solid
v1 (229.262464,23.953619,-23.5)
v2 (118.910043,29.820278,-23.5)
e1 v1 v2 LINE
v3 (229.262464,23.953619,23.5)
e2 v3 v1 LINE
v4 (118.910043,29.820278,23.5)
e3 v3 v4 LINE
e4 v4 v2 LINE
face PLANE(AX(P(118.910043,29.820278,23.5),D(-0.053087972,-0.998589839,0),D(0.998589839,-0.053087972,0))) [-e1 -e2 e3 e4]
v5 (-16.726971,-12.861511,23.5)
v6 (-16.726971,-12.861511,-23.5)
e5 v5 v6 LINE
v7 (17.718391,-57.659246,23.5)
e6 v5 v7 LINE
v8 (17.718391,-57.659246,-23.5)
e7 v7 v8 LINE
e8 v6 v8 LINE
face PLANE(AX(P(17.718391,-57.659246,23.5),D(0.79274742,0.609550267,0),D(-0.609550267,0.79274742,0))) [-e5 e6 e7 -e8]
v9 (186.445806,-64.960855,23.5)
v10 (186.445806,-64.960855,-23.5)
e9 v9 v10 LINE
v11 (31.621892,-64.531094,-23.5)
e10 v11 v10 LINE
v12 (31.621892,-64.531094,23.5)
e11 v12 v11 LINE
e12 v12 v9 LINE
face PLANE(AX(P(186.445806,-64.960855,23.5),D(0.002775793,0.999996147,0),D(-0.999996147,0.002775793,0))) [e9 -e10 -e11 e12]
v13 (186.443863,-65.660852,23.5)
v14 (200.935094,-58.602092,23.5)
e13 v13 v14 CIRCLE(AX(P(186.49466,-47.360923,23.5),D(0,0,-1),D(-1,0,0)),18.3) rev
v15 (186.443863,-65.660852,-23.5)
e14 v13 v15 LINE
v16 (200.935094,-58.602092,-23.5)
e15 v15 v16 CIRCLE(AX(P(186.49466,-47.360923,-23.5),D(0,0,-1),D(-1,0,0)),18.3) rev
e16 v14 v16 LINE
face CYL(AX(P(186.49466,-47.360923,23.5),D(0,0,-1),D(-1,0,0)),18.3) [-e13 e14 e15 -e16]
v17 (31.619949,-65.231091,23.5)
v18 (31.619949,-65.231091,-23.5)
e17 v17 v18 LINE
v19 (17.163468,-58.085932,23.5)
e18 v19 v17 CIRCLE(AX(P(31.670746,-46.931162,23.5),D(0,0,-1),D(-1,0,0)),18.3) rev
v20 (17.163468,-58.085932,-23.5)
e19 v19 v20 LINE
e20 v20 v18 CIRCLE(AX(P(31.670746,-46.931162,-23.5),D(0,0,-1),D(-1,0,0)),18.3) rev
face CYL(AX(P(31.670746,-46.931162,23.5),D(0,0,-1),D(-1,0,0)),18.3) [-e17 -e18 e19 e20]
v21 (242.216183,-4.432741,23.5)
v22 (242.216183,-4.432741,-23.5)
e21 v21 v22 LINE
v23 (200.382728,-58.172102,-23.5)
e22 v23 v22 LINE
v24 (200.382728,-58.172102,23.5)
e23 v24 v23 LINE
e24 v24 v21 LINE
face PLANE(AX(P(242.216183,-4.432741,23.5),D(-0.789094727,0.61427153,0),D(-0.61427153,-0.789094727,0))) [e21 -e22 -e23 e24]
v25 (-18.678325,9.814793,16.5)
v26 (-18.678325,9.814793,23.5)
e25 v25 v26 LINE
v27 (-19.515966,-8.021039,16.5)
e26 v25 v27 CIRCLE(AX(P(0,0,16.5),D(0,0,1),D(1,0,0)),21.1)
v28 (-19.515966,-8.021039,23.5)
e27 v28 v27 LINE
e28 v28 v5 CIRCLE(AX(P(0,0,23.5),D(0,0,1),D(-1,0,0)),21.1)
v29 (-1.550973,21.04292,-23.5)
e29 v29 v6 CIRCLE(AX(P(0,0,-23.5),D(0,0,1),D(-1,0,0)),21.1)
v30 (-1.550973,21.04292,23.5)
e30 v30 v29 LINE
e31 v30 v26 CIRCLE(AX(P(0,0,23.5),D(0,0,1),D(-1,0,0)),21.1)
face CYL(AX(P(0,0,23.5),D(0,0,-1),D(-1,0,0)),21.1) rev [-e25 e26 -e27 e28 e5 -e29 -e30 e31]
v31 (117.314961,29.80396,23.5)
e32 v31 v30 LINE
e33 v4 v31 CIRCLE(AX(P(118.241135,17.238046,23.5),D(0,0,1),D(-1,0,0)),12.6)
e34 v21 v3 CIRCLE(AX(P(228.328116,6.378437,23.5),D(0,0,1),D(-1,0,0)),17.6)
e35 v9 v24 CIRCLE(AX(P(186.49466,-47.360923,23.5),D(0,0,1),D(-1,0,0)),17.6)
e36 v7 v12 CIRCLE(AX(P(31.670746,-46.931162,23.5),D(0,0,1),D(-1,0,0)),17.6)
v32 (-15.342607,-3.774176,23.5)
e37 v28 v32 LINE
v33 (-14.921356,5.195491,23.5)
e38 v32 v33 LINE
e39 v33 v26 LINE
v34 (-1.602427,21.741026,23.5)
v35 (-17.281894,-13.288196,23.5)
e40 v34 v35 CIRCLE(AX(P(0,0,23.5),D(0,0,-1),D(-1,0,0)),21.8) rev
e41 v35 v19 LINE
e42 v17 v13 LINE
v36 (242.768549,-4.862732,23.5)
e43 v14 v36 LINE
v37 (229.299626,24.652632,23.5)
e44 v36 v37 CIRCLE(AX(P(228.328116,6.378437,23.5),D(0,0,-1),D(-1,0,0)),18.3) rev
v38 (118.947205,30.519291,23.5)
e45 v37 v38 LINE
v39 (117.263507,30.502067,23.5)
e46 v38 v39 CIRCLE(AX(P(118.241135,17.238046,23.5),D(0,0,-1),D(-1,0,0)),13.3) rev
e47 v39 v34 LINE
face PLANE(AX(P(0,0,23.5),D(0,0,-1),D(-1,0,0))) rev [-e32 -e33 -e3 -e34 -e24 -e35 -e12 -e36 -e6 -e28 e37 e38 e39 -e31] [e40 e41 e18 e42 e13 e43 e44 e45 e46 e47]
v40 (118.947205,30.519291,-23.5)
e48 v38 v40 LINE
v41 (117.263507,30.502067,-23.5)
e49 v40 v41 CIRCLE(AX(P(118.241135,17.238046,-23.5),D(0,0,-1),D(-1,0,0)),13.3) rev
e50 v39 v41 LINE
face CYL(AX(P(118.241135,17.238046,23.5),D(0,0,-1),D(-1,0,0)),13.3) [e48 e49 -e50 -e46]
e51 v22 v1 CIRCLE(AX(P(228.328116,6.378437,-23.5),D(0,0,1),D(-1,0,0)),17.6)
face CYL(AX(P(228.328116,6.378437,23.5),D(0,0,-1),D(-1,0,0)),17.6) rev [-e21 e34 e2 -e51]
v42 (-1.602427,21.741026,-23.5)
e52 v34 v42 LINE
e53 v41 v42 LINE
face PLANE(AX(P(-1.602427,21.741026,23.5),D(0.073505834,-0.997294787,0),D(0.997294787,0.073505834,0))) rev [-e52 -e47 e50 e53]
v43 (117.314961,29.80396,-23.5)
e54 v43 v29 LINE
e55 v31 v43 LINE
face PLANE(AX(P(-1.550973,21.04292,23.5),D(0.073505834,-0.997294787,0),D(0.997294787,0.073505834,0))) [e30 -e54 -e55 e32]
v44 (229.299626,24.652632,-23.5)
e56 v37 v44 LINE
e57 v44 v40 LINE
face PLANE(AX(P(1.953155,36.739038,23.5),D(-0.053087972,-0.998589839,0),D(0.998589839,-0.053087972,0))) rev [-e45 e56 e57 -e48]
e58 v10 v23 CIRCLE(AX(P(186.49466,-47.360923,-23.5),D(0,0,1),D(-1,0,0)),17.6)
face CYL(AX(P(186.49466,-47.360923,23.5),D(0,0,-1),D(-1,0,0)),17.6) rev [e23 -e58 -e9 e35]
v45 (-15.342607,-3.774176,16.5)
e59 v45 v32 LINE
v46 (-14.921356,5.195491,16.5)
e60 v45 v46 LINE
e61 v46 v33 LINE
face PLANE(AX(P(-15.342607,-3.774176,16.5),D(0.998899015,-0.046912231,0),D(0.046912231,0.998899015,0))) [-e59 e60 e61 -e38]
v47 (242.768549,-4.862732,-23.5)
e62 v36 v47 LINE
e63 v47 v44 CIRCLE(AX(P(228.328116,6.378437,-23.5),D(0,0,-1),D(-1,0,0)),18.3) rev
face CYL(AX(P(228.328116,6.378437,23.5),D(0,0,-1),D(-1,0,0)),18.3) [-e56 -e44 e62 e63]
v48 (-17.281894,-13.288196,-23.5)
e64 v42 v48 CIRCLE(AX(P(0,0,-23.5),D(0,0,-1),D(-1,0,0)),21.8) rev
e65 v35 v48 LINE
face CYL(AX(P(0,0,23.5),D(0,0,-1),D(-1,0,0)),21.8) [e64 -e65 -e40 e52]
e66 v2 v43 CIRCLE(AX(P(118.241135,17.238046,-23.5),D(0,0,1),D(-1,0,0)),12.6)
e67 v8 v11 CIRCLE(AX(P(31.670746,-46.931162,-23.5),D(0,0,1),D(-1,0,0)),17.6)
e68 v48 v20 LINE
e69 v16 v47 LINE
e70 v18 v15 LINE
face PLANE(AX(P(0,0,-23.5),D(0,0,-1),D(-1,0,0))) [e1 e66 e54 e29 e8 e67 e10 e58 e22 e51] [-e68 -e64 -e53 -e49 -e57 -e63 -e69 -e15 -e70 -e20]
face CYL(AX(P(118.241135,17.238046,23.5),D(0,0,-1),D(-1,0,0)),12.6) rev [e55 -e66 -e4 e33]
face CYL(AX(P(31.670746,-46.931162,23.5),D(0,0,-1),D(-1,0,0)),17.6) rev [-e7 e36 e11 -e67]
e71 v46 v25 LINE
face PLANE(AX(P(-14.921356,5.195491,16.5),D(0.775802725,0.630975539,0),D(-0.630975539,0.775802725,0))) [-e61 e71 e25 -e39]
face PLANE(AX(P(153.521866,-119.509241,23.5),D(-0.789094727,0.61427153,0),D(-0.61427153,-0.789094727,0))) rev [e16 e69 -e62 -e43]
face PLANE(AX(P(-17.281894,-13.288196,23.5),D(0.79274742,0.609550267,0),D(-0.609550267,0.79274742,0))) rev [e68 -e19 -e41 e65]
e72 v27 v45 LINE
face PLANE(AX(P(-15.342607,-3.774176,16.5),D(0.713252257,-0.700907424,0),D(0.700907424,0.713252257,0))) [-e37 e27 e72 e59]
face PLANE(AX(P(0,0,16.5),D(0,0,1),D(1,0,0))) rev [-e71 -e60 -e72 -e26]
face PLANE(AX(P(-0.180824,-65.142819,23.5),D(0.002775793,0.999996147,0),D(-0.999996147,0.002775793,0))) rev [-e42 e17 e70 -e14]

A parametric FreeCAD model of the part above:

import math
import FreeCAD as App
import Part
import Sketcher

V = App.Vector
Q = App.Units.Quantity

doc = App.newDocument("Part")
params = doc.addObject("Spreadsheet::Sheet", "Params")
for row, (alias, value) in enumerate([
    ("sketch1_radius", "18.3 mm"),
    ("sketch1_radius2", "18.3 mm"),
    ("sketch1_radius3", "18.3 mm"),
    ("sketch1_radius4", "13.3 mm"),
    ("sketch1_radius5", "21.8 mm"),
    ("pad1_length", "47 mm"),
    ("sketch2_radius", "21.8 mm"),
    ("pad2_length", "7 mm"),
], start=1):
    params.set(f"A{row}", alias)
    params.set(f"B{row}", "=" + value)
    params.setAlias(f"B{row}", alias)

body = doc.addObject("PartDesign::Body", "Body")

# Sketch on XY plane
sketch1 = body.newObject("Sketcher::SketchObject", "Sketch")
sketch1.AttachmentSupport = (doc.getObject("XY_Plane"), [""])
sketch1.MapMode = "FlatFace"
sketch1.addGeometry([
    Part.LineSegment(V(-17.281894, -13.288196, 0), V(17.163468, -58.085932, 0)),  # 0
    Part.ArcOfCircle(Part.Circle(V(31.670746, -46.931162, 0), V(0, 0, 1), 18.3), math.radians(-142.443009), math.radians(-90.159041)),  # 1
    Part.LineSegment(V(31.619949, -65.231091, 0), V(186.443863, -65.660852, 0)),  # 2
    Part.ArcOfCircle(Part.Circle(V(186.49466, -47.360923, 0), V(0, 0, 1), 18.3), math.radians(-90.159041), math.radians(-37.899007)),  # 3
    Part.LineSegment(V(200.935094, -58.602092, 0), V(242.768549, -4.862732, 0)),  # 4
    Part.ArcOfCircle(Part.Circle(V(228.328116, 6.378437, 0), V(0, 0, 1), 18.3), math.radians(-37.899007), math.radians(86.956853)),  # 5
    Part.LineSegment(V(229.299626, 24.652632, 0), V(118.947205, 30.519291, 0)),  # 6
    Part.ArcOfCircle(Part.Circle(V(118.241135, 17.238046, 0), V(0, 0, 1), 13.3), math.radians(86.956853), math.radians(94.215376)),  # 7
    Part.LineSegment(V(117.263507, 30.502067, 0), V(-1.602427, 21.741026, 0)),  # 8
    Part.ArcOfCircle(Part.Circle(V(0, 0, 0), V(0, 0, 1), 21.8), math.radians(94.215376), math.radians(217.556991)),  # 9
    Part.LineSegment(V(17.718391, -57.659246, 0), V(-16.726971, -12.861511, 0)),  # 10
    Part.ArcOfCircle(Part.Circle(V(0, 0, 0), V(0, 0, 1), 21.1), math.radians(94.215376), math.radians(217.556991)),  # 11
    Part.LineSegment(V(-1.550973, 21.04292, 0), V(117.314961, 29.80396, 0)),  # 12
    Part.ArcOfCircle(Part.Circle(V(118.241135, 17.238046, 0), V(0, 0, 1), 12.6), math.radians(86.956853), math.radians(94.215376)),  # 13
    Part.LineSegment(V(118.910043, 29.820278, 0), V(229.262464, 23.953619, 0)),  # 14
    Part.ArcOfCircle(Part.Circle(V(228.328116, 6.378437, 0), V(0, 0, 1), 17.6), math.radians(-37.899007), math.radians(86.956853)),  # 15
    Part.LineSegment(V(242.216183, -4.432741, 0), V(200.382728, -58.172102, 0)),  # 16
    Part.ArcOfCircle(Part.Circle(V(186.49466, -47.360923, 0), V(0, 0, 1), 17.6), math.radians(-90.159041), math.radians(-37.899007)),  # 17
    Part.LineSegment(V(186.445806, -64.960855, 0), V(31.621892, -64.531094, 0)),  # 18
    Part.ArcOfCircle(Part.Circle(V(31.670746, -46.931162, 0), V(0, 0, 1), 17.6), math.radians(-142.443009), math.radians(-90.159041)),  # 19
], False)
sketch1.addConstraint([
    Sketcher.Constraint("Coincident", 0, 2, 1, 1),
    Sketcher.Constraint("Coincident", 1, 2, 2, 1),
    Sketcher.Constraint("Coincident", 2, 2, 3, 1),
    Sketcher.Constraint("Coincident", 3, 2, 4, 1),
    Sketcher.Constraint("Coincident", 4, 2, 5, 1),
    Sketcher.Constraint("Coincident", 5, 2, 6, 1),
    Sketcher.Constraint("Coincident", 6, 2, 7, 1),
    Sketcher.Constraint("Coincident", 7, 2, 8, 1),
    Sketcher.Constraint("Coincident", 8, 2, 9, 1),
    Sketcher.Constraint("Coincident", 9, 2, 0, 1),
    Sketcher.Constraint("Coincident", 10, 2, 11, 2),
    Sketcher.Constraint("Coincident", 11, 1, 12, 1),
    Sketcher.Constraint("Coincident", 12, 2, 13, 2),
    Sketcher.Constraint("Coincident", 13, 1, 14, 1),
    Sketcher.Constraint("Coincident", 14, 2, 15, 2),
    Sketcher.Constraint("Coincident", 15, 1, 16, 1),
    Sketcher.Constraint("Coincident", 16, 2, 17, 2),
    Sketcher.Constraint("Coincident", 17, 1, 18, 1),
    Sketcher.Constraint("Coincident", 18, 2, 19, 2),
    Sketcher.Constraint("Coincident", 19, 1, 10, 1),
    Sketcher.Constraint("Coincident", 9, 3, -1, 1),
    Sketcher.Constraint("Coincident", 11, 3, -1, 1),
    Sketcher.Constraint("Coincident", 13, 3, 7, 3),
    Sketcher.Constraint("Coincident", 15, 3, 5, 3),
    Sketcher.Constraint("Coincident", 17, 3, 3, 3),
    Sketcher.Constraint("Coincident", 19, 3, 1, 3),
    Sketcher.Constraint("Radius", 1, Q("18.3 mm")),
    Sketcher.Constraint("Radius", 3, Q("18.3 mm")),
    Sketcher.Constraint("Radius", 5, Q("18.3 mm")),
    Sketcher.Constraint("Radius", 7, Q("13.3 mm")),
    Sketcher.Constraint("Radius", 9, Q("21.8 mm")),
    Sketcher.Constraint("Radius", 11, Q("21.1 mm")),
    Sketcher.Constraint("Radius", 13, Q("12.6 mm")),
    Sketcher.Constraint("Radius", 15, Q("17.6 mm")),
    Sketcher.Constraint("Radius", 17, Q("17.6 mm")),
    Sketcher.Constraint("Radius", 19, Q("17.6 mm")),
    Sketcher.Constraint("DistanceY", 16, 2, -1, 1, Q("58.172102 mm")),
    Sketcher.Constraint("DistanceY", 1, 3, 5, 3, Q("53.309599 mm")),
    Sketcher.Constraint("DistanceX", 12, 2, 3, 3, Q("69.179699 mm")),
    Sketcher.Constraint("DistanceX", 19, 1, 18, 2, Q("13.903501 mm")),
    Sketcher.Constraint("Distance", 0, Q("56.509469 mm")),
    Sketcher.Constraint("Distance", 2, Q("154.824511 mm")),
    Sketcher.Constraint("Distance", 10, Q("56.509469 mm")),
    Sketcher.Constraint("Distance", 18, Q("154.824511 mm")),
    Sketcher.Constraint("DistanceY", 1, 3, -1, 1, Q("46.931162 mm")),
    Sketcher.Constraint("DistanceX", -1, 1, 3, 3, Q("186.49466 mm")),
    Sketcher.Constraint("DistanceX", -1, 1, 0, 2, Q("17.163468 mm")),
    Sketcher.Constraint("DistanceY", 0, 2, -1, 1, Q("58.085932 mm")),
    Sketcher.Constraint("DistanceX", -1, 1, 1, 2, Q("31.619949 mm")),
    Sketcher.Constraint("DistanceY", 3, 2, -1, 1, Q("58.602092 mm")),
    Sketcher.Constraint("DistanceX", -1, 1, 4, 2, Q("242.768549 mm")),
    Sketcher.Constraint("DistanceY", 4, 2, -1, 1, Q("4.862732 mm")),
    Sketcher.Constraint("DistanceY", -1, 1, 5, 2, Q("24.652632 mm")),
    Sketcher.Constraint("DistanceY", -1, 1, 6, 2, Q("30.519291 mm")),
    Sketcher.Constraint("DistanceX", 10, 2, -1, 1, Q("16.726971 mm")),
    Sketcher.Constraint("DistanceY", -1, 1, 11, 1, Q("21.04292 mm")),
    Sketcher.Constraint("DistanceY", -1, 1, 12, 2, Q("29.80396 mm")),
    Sketcher.Constraint("DistanceY", -1, 1, 14, 2, Q("23.953619 mm")),
    Sketcher.Constraint("DistanceY", 15, 1, -1, 1, Q("4.432741 mm")),
    Sketcher.Constraint("DistanceY", 3, 3, 1, 3, Q("0.429761 mm")),
    Sketcher.Constraint("DistanceY", 3, 3, 7, 3, Q("64.598969 mm")),
    Sketcher.Constraint("DistanceY", 7, 3, 7, 2, Q("13.26402 mm")),
    Sketcher.Constraint("DistanceY", 1, 3, 8, 2, Q("68.672188 mm")),
    Sketcher.Constraint("DistanceX", 13, 1, 6, 2, Q("0.037162 mm")),
])
sketch1.setExpression("Constraints[26]", "Params.sketch1_radius")
sketch1.setExpression("Constraints[27]", "Params.sketch1_radius2")
sketch1.setExpression("Constraints[28]", "Params.sketch1_radius3")
sketch1.setExpression("Constraints[29]", "Params.sketch1_radius4")
sketch1.setExpression("Constraints[30]", "Params.sketch1_radius5")
pad1 = body.newObject("PartDesign::Pad", "Pad")
pad1.Profile = sketch1
pad1.setExpression("Length", "Params.pad1_length")
pad1.Midplane = True

# Sketch on XY plane
sketch2 = body.newObject("Sketcher::SketchObject", "Sketch001")
sketch2.AttachmentSupport = (doc.getObject("XY_Plane"), [""])
sketch2.MapMode = "FlatFace"
sketch2.AttachmentOffset = App.Placement(V(0, 0, 23.5), App.Rotation())
sketch2.addGeometry([
    Part.LineSegment(V(-15.342607, -3.774176, 0), V(-14.921356, 5.195491, 0)),  # 0
    Part.LineSegment(V(-14.921356, 5.195491, 0), V(-18.814601, 9.982348, 0)),  # 1
    Part.LineSegment(V(-18.814601, 9.982348, 0), V(-19.366834, 10.008283, 0)),  # 2
    Part.ArcOfCircle(Part.Circle(V(0, 0, 0), V(0, 0, 1), 21.8), math.radians(152.671239), math.radians(202.571088)),  # 3
    Part.LineSegment(V(-20.130208, -8.367481, 0), V(-19.667346, -8.175084, 0)),  # 4
    Part.LineSegment(V(-19.667346, -8.175084, 0), V(-15.342607, -3.774176, 0)),  # 5
], False)
sketch2.addConstraint([
    Sketcher.Constraint("Coincident", 0, 2, 1, 1),
    Sketcher.Constraint("Coincident", 1, 2, 2, 1),
    Sketcher.Constraint("Coincident", 2, 2, 3, 1),
    Sketcher.Constraint("Coincident", 3, 2, 4, 1),
    Sketcher.Constraint("Coincident", 4, 2, 5, 1),
    Sketcher.Constraint("Coincident", 5, 2, 0, 1),
    Sketcher.Constraint("Coincident", 3, 3, -1, 1),
    Sketcher.Constraint("Radius", 3, Q("21.8 mm")),
    Sketcher.Constraint("Distance", 1, Q("6.170199 mm")),
    Sketcher.Constraint("Distance", 5, Q("6.170199 mm")),
    Sketcher.Constraint("DistanceX", 1, 2, -1, 1, Q("18.814601 mm")),
    Sketcher.Constraint("DistanceX", 3, 2, 5, 2, Q("4.7876 mm")),
    Sketcher.Constraint("Distance", 2, Q("0.552842 mm")),
    Sketcher.Constraint("DistanceY", -1, 1, 0, 2, Q("5.195491 mm")),
    Sketcher.Constraint("DistanceY", -1, 1, 1, 2, Q("9.982348 mm")),
    Sketcher.Constraint("DistanceY", 3, 2, -1, 1, Q("8.367481 mm")),
    Sketcher.Constraint("DistanceX", 4, 2, 0, 2, Q("4.745989 mm")),
    Sketcher.Constraint("DistanceY", 5, 2, 2, 2, Q("13.782459 mm")),
])
sketch2.setExpression("Constraints[7]", "Params.sketch2_radius")
pad2 = body.newObject("PartDesign::Pad", "Pad001")
pad2.Profile = sketch2
pad2.setExpression("Length", "Params.pad2_length")
pad2.Reversed = True

doc.recompute()
